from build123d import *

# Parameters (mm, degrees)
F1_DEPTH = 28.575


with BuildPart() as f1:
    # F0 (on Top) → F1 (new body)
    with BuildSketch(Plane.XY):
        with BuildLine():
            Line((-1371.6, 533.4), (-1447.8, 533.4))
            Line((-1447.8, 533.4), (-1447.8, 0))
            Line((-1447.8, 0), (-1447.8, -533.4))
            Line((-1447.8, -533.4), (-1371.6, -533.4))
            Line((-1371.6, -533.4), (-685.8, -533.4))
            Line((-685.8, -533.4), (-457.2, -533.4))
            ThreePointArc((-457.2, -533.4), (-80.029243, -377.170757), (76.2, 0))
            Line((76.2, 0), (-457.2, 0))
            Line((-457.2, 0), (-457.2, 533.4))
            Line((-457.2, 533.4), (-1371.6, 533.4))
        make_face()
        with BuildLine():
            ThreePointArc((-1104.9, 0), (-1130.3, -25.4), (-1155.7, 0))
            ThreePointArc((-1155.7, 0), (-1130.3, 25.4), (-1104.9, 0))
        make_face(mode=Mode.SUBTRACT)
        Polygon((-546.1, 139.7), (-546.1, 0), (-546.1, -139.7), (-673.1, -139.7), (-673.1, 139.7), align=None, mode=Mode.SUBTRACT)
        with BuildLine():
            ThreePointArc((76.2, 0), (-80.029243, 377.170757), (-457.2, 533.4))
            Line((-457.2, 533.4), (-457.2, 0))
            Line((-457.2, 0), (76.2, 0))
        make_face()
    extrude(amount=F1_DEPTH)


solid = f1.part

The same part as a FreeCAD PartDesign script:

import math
import FreeCAD as App
import Part
import Sketcher

V = App.Vector
Q = App.Units.Quantity


def add_polygon(sketch, points):
    """Adds a closed chain of lines whose ends are joined by coincident constraints."""
    first, n = sketch.GeometryCount, len(points)
    for a, b in zip(points, points[1:] + points[:1]):
        sketch.addGeometry(Part.LineSegment(App.Vector(*a, 0), App.Vector(*b, 0)), False)
    for i in range(n):
        sketch.addConstraint(Sketcher.Constraint("Coincident", first + i, 2, first + (i + 1) % n, 1))

doc = App.newDocument("Part")
body = doc.addObject("PartDesign::Body", "Body")

sketch1 = body.newObject("Sketcher::SketchObject", "Sketch")
sketch1.AttachmentSupport = (doc.getObject("XY_Plane"), [""])
sketch1.MapMode = "FlatFace"
sketch1.addGeometry(Part.LineSegment(V(-1448, 533, 0), V(-1448, -533, 0)), False)
sketch1.addGeometry(Part.LineSegment(V(-1448, -533, 0), V(-457, -533, 0)), False)
sketch1.addGeometry(Part.ArcOfCircle(Part.Circle(V(-457, 0, 0), V(0, 0, 1), 533), math.radians(-90), math.radians(0)), False)
sketch1.addGeometry(Part.ArcOfCircle(Part.Circle(V(-457, 0, 0), V(0, 0, 1), 533), math.radians(0), math.radians(90)), False)
sketch1.addGeometry(Part.LineSegment(V(-457, 533, 0), V(-1448, 533, 0)), False)
sketch1.addGeometry(Part.Circle(V(-1130, 0, 0), V(0, 0, 1), 25), False)
add_polygon(sketch1, [(-673, 140), (-546, 140), (-546, -140), (-673, -140)])
sketch1.addConstraint([
    Sketcher.Constraint("Coincident", 0, 2, 1, 1),
    Sketcher.Constraint("Tangent", 1, 2, 2, 1),
    Sketcher.Constraint("Coincident", 2, 2, 3, 1),
    Sketcher.Constraint("Tangent", 3, 2, 4, 1),
    Sketcher.Constraint("Coincident", 4, 2, 0, 1),
    Sketcher.Constraint("Vertical", 0),
    Sketcher.Constraint("Horizontal", 1),
    Sketcher.Constraint("Horizontal", 4),
    Sketcher.Constraint("Horizontal", 6),
    Sketcher.Constraint("Vertical", 7),
    Sketcher.Constraint("Horizontal", 8),
    Sketcher.Constraint("Vertical", 9),
    Sketcher.Constraint("Coincident", 3, 3, 2, 3),
    Sketcher.Constraint("PointOnObject", 2, 3, -1),
    Sketcher.Constraint("PointOnObject", 5, 3, -1),
    Sketcher.Constraint("PointOnObject", 2, 2, -1),
    Sketcher.Constraint("Diameter", 5, Q("2 in")),
    Sketcher.Constraint("Radius", 2, Q("21 in")),
    Sketcher.Constraint("DistanceX", 1, 1, 1, 2, Q("39 in")),
    Sketcher.Constraint("DistanceX", 6, 1, 6, 2, Q("5 in")),
    Sketcher.Constraint("DistanceY", 7, 2, 7, 1, Q("11 in")),
    Sketcher.Constraint("DistanceX", 2, 3, -1, 1, Q("18 in")),
    Sketcher.Constraint("DistanceX", 5, 3, 6, 2, Q("23 in")),
    Sketcher.Constraint("DistanceX", 5, 3, -1, 1, Q("44.5 in")),
    Sketcher.Constraint("DistanceY", -1, 1, 6, 2, Q("5.5 in")),
])
pad1 = body.newObject("PartDesign::Pad", "Pad")
pad1.Profile = sketch1
pad1.Length = Q("1.125 in")

doc.recompute()
